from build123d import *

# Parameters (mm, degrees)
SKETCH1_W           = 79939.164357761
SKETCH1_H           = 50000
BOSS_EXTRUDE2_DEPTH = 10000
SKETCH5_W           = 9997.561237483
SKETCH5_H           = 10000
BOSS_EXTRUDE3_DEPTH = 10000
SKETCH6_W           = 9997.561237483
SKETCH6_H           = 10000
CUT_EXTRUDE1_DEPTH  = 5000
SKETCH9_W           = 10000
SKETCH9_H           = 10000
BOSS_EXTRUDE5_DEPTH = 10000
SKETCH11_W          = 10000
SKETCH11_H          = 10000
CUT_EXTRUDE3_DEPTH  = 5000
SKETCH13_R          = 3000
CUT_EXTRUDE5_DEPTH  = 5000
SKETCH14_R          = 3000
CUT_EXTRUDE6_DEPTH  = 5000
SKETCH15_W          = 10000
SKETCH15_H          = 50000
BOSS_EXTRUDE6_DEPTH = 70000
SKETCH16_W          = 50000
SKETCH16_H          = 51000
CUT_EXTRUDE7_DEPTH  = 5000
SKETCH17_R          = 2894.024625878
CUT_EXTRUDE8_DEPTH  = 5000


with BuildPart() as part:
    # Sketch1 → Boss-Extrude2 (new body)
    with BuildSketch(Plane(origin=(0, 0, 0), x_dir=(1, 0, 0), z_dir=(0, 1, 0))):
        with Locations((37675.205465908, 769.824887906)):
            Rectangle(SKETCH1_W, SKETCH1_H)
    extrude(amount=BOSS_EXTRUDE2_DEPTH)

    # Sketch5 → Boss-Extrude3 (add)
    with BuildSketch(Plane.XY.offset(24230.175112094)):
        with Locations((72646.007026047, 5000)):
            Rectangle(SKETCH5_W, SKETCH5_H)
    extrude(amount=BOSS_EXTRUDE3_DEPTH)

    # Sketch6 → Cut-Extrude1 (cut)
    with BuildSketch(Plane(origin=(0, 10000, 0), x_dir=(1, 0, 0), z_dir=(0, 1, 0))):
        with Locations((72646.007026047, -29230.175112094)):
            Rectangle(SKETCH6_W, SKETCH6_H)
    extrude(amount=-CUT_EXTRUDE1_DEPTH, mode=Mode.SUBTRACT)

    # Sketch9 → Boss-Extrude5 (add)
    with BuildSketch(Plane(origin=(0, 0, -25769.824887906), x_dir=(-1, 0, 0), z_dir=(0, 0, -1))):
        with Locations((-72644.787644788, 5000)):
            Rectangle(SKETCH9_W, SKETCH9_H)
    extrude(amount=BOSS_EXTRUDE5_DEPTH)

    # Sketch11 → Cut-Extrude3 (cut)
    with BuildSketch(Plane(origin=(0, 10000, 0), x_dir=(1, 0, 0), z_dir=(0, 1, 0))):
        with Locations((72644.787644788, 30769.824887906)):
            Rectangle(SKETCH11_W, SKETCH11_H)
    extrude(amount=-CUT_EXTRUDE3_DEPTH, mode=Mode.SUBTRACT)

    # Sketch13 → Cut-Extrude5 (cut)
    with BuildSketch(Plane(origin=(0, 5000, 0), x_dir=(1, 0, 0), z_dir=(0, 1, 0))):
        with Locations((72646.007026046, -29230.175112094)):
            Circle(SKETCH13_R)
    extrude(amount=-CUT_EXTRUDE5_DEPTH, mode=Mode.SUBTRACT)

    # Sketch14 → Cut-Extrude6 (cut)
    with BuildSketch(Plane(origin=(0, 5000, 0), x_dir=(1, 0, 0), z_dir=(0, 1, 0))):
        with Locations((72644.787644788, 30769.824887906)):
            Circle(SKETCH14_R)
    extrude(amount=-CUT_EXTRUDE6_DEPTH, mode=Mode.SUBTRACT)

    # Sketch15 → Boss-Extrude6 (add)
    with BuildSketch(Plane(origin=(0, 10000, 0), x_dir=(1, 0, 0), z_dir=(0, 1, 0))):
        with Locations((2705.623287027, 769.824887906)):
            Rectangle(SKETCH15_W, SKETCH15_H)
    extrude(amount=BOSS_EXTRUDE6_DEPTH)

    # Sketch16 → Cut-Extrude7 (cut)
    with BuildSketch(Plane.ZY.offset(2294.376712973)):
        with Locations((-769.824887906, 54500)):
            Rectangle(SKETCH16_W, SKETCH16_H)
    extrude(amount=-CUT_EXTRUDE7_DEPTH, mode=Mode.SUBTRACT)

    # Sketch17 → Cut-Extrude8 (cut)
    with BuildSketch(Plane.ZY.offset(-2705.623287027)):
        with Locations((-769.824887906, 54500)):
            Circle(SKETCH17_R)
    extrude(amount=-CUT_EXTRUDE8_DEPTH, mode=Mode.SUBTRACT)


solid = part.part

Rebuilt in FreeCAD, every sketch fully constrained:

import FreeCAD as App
import Part
import Sketcher

V = App.Vector

doc = App.newDocument("Part")
params = doc.addObject("Spreadsheet::Sheet", "Params")
for row, (alias, value) in enumerate([
    ("sketch1_height", "50000 mm"),
    ("pad1_length", "10000 mm"),
    ("sketch2_height", "10000 mm"),
    ("pad2_length", "10000 mm"),
    ("sketch3_height", "10000 mm"),
    ("pocket1_length", "5000 mm"),
    ("sketch4_width", "10000 mm"),
    ("pad3_length", "10000 mm"),
    ("sketch5_width", "10000 mm"),
    ("pocket2_length", "5000 mm"),
    ("sketch6_diameter", "6000 mm"),
    ("pocket3_length", "5000 mm"),
    ("sketch7_diameter", "6000 mm"),
    ("pocket4_length", "5000 mm"),
    ("sketch8_width", "10000 mm"),
    ("sketch8_height", "50000 mm"),
    ("pad4_length", "70000 mm"),
    ("sketch9_width", "51000 mm"),
    ("sketch9_height", "50000 mm"),
    ("pocket5_length", "5000 mm"),
    ("pocket6_length", "5000 mm"),
], start=1):
    params.set(f"A{row}", alias)
    params.set(f"B{row}", "=" + value)
    params.setAlias(f"B{row}", alias)

body = doc.addObject("PartDesign::Body", "Body")

sketch1 = body.newObject("Sketcher::SketchObject", "Sketch")
sketch1.AttachmentSupport = (doc.getObject("XZ_Plane"), [""])
sketch1.MapMode = "FlatFace"
sketch1.addGeometry([
    Part.LineSegment(V(-2294, -25770, 0), V(-2294, 24230, 0)),
    Part.LineSegment(V(-2294, 24230, 0), V(77645, 24230, 0)),
    Part.LineSegment(V(77645, 24230, 0), V(77645, -25770, 0)),
    Part.LineSegment(V(77645, -25770, 0), V(-2294, -25770, 0)),
], False)
sketch1.addConstraint([
    Sketcher.Constraint("Coincident", 0, 2, 1, 1),
    Sketcher.Constraint("Coincident", 1, 2, 2, 1),
    Sketcher.Constraint("Coincident", 2, 2, 3, 1),
    Sketcher.Constraint("Coincident", 3, 2, 0, 1),
    Sketcher.Constraint("Vertical", 0),
    Sketcher.Constraint("Horizontal", 1),
    Sketcher.Constraint("Vertical", 2),
    Sketcher.Constraint("Horizontal", 3),
    Sketcher.Constraint("DistanceY", 0, 1, 0, 2, 50000.0),
    Sketcher.Constraint("DistanceX", 1, 1, 1, 2, 79939.164358),
    Sketcher.Constraint("DistanceX", 0, 2, -1, 1, 2294.376713),
    Sketcher.Constraint("DistanceY", -1, 1, 0, 2, 24230.175112),
])
sketch1.setExpression("Constraints[8]", "Params.sketch1_height")
pad1 = body.newObject("PartDesign::Pad", "Pad")
pad1.Profile = sketch1
pad1.setExpression("Length", "Params.pad1_length")
pad1.Reversed = True

sketch2 = body.newObject("Sketcher::SketchObject", "Sketch001")
sketch2.AttachmentSupport = (doc.getObject("XY_Plane"), [""])
sketch2.MapMode = "FlatFace"
sketch2.AttachmentOffset = App.Placement(V(0, 0, 24230.175112), App.Rotation())
sketch2.addGeometry([
    Part.LineSegment(V(67647, 10000, 0), V(67647, 0, 0)),
    Part.LineSegment(V(67647, 0, 0), V(77645, 0, 0)),
    Part.LineSegment(V(77645, 0, 0), V(77645, 10000, 0)),
    Part.LineSegment(V(77645, 10000, 0), V(67647, 10000, 0)),
], False)
sketch2.addConstraint([
    Sketcher.Constraint("Coincident", 0, 2, 1, 1),
    Sketcher.Constraint("Coincident", 1, 2, 2, 1),
    Sketcher.Constraint("Coincident", 2, 2, 3, 1),
    Sketcher.Constraint("Coincident", 3, 2, 0, 1),
    Sketcher.Constraint("Vertical", 0),
    Sketcher.Constraint("Horizontal", 1),
    Sketcher.Constraint("Vertical", 2),
    Sketcher.Constraint("Horizontal", 3),
    Sketcher.Constraint("PointOnObject", 0, 2, -1),
    Sketcher.Constraint("DistanceY", 0, 2, 0, 1, 10000.0),
    Sketcher.Constraint("DistanceX", 1, 1, 1, 2, 9997.561237),
    Sketcher.Constraint("DistanceX", -1, 1, 0, 2, 67647.226407),
])
sketch2.setExpression("Constraints[9]", "Params.sketch2_height")
pad2 = body.newObject("PartDesign::Pad", "Pad001")
pad2.Profile = sketch2
pad2.setExpression("Length", "Params.pad2_length")

sketch3 = body.newObject("Sketcher::SketchObject", "Sketch002")
sketch3.AttachmentSupport = (doc.getObject("XZ_Plane"), [""])
sketch3.MapMode = "FlatFace"
sketch3.AttachmentOffset = App.Placement(V(0, 0, -10000), App.Rotation())
sketch3.addGeometry([
    Part.LineSegment(V(67647, 24230, 0), V(67647, 34230, 0)),
    Part.LineSegment(V(67647, 34230, 0), V(77645, 34230, 0)),
    Part.LineSegment(V(77645, 34230, 0), V(77645, 24230, 0)),
    Part.LineSegment(V(77645, 24230, 0), V(67647, 24230, 0)),
], False)
sketch3.addConstraint([
    Sketcher.Constraint("Coincident", 0, 2, 1, 1),
    Sketcher.Constraint("Coincident", 1, 2, 2, 1),
    Sketcher.Constraint("Coincident", 2, 2, 3, 1),
    Sketcher.Constraint("Coincident", 3, 2, 0, 1),
    Sketcher.Constraint("Vertical", 0),
    Sketcher.Constraint("Horizontal", 1),
    Sketcher.Constraint("Vertical", 2),
    Sketcher.Constraint("Horizontal", 3),
    Sketcher.Constraint("DistanceY", 0, 1, 0, 2, 10000.0),
    Sketcher.Constraint("DistanceX", 1, 1, 1, 2, 9997.561237),
    Sketcher.Constraint("DistanceX", -1, 1, 0, 2, 67647.226407),
    Sketcher.Constraint("DistanceY", -1, 1, 0, 2, 34230.175112),
])
sketch3.setExpression("Constraints[8]", "Params.sketch3_height")
pocket1 = body.newObject("PartDesign::Pocket", "Pocket")
pocket1.Profile = sketch3
pocket1.setExpression("Length", "Params.pocket1_length")
pocket1.Reversed = True

sketch4 = body.newObject("Sketcher::SketchObject", "Sketch003")
sketch4.AttachmentSupport = (doc.getObject("XY_Plane"), [""])
sketch4.MapMode = "FlatFace"
sketch4.AttachmentOffset = App.Placement(V(0, 0, -25769.824888), App.Rotation())
sketch4.addGeometry([
    Part.LineSegment(V(77645, 10000, 0), V(77645, 0, 0)),
    Part.LineSegment(V(77645, 0, 0), V(67645, 0, 0)),
    Part.LineSegment(V(67645, 0, 0), V(67645, 10000, 0)),
    Part.LineSegment(V(67645, 10000, 0), V(77645, 10000, 0)),
], False)
sketch4.addConstraint([
    Sketcher.Constraint("Coincident", 0, 2, 1, 1),
    Sketcher.Constraint("Coincident", 1, 2, 2, 1),
    Sketcher.Constraint("Coincident", 2, 2, 3, 1),
    Sketcher.Constraint("Coincident", 3, 2, 0, 1),
    Sketcher.Constraint("Vertical", 0),
    Sketcher.Constraint("Horizontal", 1),
    Sketcher.Constraint("Vertical", 2),
    Sketcher.Constraint("Horizontal", 3),
    Sketcher.Constraint("PointOnObject", 0, 2, -1),
    Sketcher.Constraint("Equal", 3, 0),
    Sketcher.Constraint("DistanceX", 1, 2, 1, 1, 10000.0),
    Sketcher.Constraint("DistanceX", -1, 1, 0, 2, 77644.787645),
])
sketch4.setExpression("Constraints[10]", "Params.sketch4_width")
pad3 = body.newObject("PartDesign::Pad", "Pad002")
pad3.Profile = sketch4
pad3.setExpression("Length", "Params.pad3_length")
pad3.Reversed = True

sketch5 = body.newObject("Sketcher::SketchObject", "Sketch004")
sketch5.AttachmentSupport = (doc.getObject("XZ_Plane"), [""])
sketch5.MapMode = "FlatFace"
sketch5.AttachmentOffset = App.Placement(V(0, 0, -10000), App.Rotation())
sketch5.addGeometry([
    Part.LineSegment(V(67645, -35770, 0), V(67645, -25770, 0)),
    Part.LineSegment(V(67645, -25770, 0), V(77645, -25770, 0)),
    Part.LineSegment(V(77645, -25770, 0), V(77645, -35770, 0)),
    Part.LineSegment(V(77645, -35770, 0), V(67645, -35770, 0)),
], False)
sketch5.addConstraint([
    Sketcher.Constraint("Coincident", 0, 2, 1, 1),
    Sketcher.Constraint("Coincident", 1, 2, 2, 1),
    Sketcher.Constraint("Coincident", 2, 2, 3, 1),
    Sketcher.Constraint("Coincident", 3, 2, 0, 1),
    Sketcher.Constraint("Vertical", 0),
    Sketcher.Constraint("Horizontal", 1),
    Sketcher.Constraint("Vertical", 2),
    Sketcher.Constraint("Horizontal", 3),
    Sketcher.Constraint("Equal", 3, 0),
    Sketcher.Constraint("DistanceX", 1, 1, 1, 2, 10000.0),
    Sketcher.Constraint("DistanceX", -1, 1, 0, 2, 67644.787645),
    Sketcher.Constraint("DistanceY", 0, 2, -1, 1, 25769.824888),
])
sketch5.setExpression("Constraints[9]", "Params.sketch5_width")
pocket2 = body.newObject("PartDesign::Pocket", "Pocket001")
pocket2.Profile = sketch5
pocket2.setExpression("Length", "Params.pocket2_length")
pocket2.Reversed = True

sketch6 = body.newObject("Sketcher::SketchObject", "Sketch005")
sketch6.AttachmentSupport = (doc.getObject("XZ_Plane"), [""])
sketch6.MapMode = "FlatFace"
sketch6.AttachmentOffset = App.Placement(V(0, 0, -5000), App.Rotation())
sketch6.addGeometry(Part.Circle(V(72646, 29230, 0), V(0, 0, 1), 3000), False)
sketch6.addConstraint([
    Sketcher.Constraint("Diameter", 0, 6000.0),
    Sketcher.Constraint("DistanceX", -1, 1, 0, 3, 72646.007026),
    Sketcher.Constraint("DistanceY", -1, 1, 0, 3, 29230.175112),
])
sketch6.setExpression("Constraints[0]", "Params.sketch6_diameter")
pocket3 = body.newObject("PartDesign::Pocket", "Pocket002")
pocket3.Profile = sketch6
pocket3.setExpression("Length", "Params.pocket3_length")
pocket3.Reversed = True

sketch7 = body.newObject("Sketcher::SketchObject", "Sketch006")
sketch7.AttachmentSupport = (doc.getObject("XZ_Plane"), [""])
sketch7.MapMode = "FlatFace"
sketch7.AttachmentOffset = App.Placement(V(0, 0, -5000), App.Rotation())
sketch7.addGeometry(Part.Circle(V(72645, -30770, 0), V(0, 0, 1), 3000), False)
sketch7.addConstraint([
    Sketcher.Constraint("Diameter", 0, 6000.0),
    Sketcher.Constraint("DistanceX", -1, 1, 0, 3, 72644.787645),
    Sketcher.Constraint("DistanceY", 0, 3, -1, 1, 30769.824888),
])
sketch7.setExpression("Constraints[0]", "Params.sketch7_diameter")
pocket4 = body.newObject("PartDesign::Pocket", "Pocket003")
pocket4.Profile = sketch7
pocket4.setExpression("Length", "Params.pocket4_length")
pocket4.Reversed = True

sketch8 = body.newObject("Sketcher::SketchObject", "Sketch007")
sketch8.AttachmentSupport = (doc.getObject("XZ_Plane"), [""])
sketch8.MapMode = "FlatFace"
sketch8.AttachmentOffset = App.Placement(V(0, 0, -10000), App.Rotation())
sketch8.addGeometry([
    Part.LineSegment(V(-2294, -25770, 0), V(-2294, 24230, 0)),
    Part.LineSegment(V(-2294, 24230, 0), V(7706, 24230, 0)),
    Part.LineSegment(V(7706, 24230, 0), V(7706, -25770, 0)),
    Part.LineSegment(V(7706, -25770, 0), V(-2294, -25770, 0)),
], False)
sketch8.addConstraint([
    Sketcher.Constraint("Coincident", 0, 2, 1, 1),
    Sketcher.Constraint("Coincident", 1, 2, 2, 1),
    Sketcher.Constraint("Coincident", 2, 2, 3, 1),
    Sketcher.Constraint("Coincident", 3, 2, 0, 1),
    Sketcher.Constraint("Vertical", 0),
    Sketcher.Constraint("Horizontal", 1),
    Sketcher.Constraint("Vertical", 2),
    Sketcher.Constraint("Horizontal", 3),
    Sketcher.Constraint("DistanceX", 1, 1, 1, 2, 10000.0),
    Sketcher.Constraint("DistanceY", 0, 1, 0, 2, 50000.0),
    Sketcher.Constraint("DistanceX", 0, 2, -1, 1, 2294.376713),
    Sketcher.Constraint("DistanceY", -1, 1, 0, 2, 24230.175112),
])
sketch8.setExpression("Constraints[8]", "Params.sketch8_width")
sketch8.setExpression("Constraints[9]", "Params.sketch8_height")
pad4 = body.newObject("PartDesign::Pad", "Pad003")
pad4.Profile = sketch8
pad4.setExpression("Length", "Params.pad4_length")
pad4.Reversed = True

sketch9 = body.newObject("Sketcher::SketchObject", "Sketch008")
sketch9.AttachmentSupport = (doc.getObject("YZ_Plane"), [""])
sketch9.MapMode = "FlatFace"
sketch9.AttachmentOffset = App.Placement(V(0, 0, -2294.376713), App.Rotation())
sketch9.addGeometry([
    Part.LineSegment(V(80000, -25770, 0), V(29000, -25770, 0)),
    Part.LineSegment(V(29000, -25770, 0), V(29000, 24230, 0)),
    Part.LineSegment(V(29000, 24230, 0), V(80000, 24230, 0)),
    Part.LineSegment(V(80000, 24230, 0), V(80000, -25770, 0)),
], False)
sketch9.addConstraint([
    Sketcher.Constraint("Coincident", 0, 2, 1, 1),
    Sketcher.Constraint("Coincident", 1, 2, 2, 1),
    Sketcher.Constraint("Coincident", 2, 2, 3, 1),
    Sketcher.Constraint("Coincident", 3, 2, 0, 1),
    Sketcher.Constraint("Horizontal", 0),
    Sketcher.Constraint("Vertical", 1),
    Sketcher.Constraint("Horizontal", 2),
    Sketcher.Constraint("Vertical", 3),
    Sketcher.Constraint("DistanceX", 0, 2, 0, 1, 51000.0),
    Sketcher.Constraint("DistanceY", 1, 1, 1, 2, 50000.0),
    Sketcher.Constraint("DistanceX", -1, 1, 0, 2, 29000.0),
    Sketcher.Constraint("DistanceY", 0, 2, -1, 1, 25769.824888),
])
sketch9.setExpression("Constraints[8]", "Params.sketch9_width")
sketch9.setExpression("Constraints[9]", "Params.sketch9_height")
pocket5 = body.newObject("PartDesign::Pocket", "Pocket004")
pocket5.Profile = sketch9
pocket5.setExpression("Length", "Params.pocket5_length")
pocket5.Reversed = True

sketch10 = body.newObject("Sketcher::SketchObject", "Sketch009")
sketch10.AttachmentSupport = (doc.getObject("YZ_Plane"), [""])
sketch10.MapMode = "FlatFace"
sketch10.AttachmentOffset = App.Placement(V(0, 0, 2705.623287), App.Rotation())
sketch10.addGeometry(Part.Circle(V(54500, -770, 0), V(0, 0, 1), 2894), False)
sketch10.addConstraint([
    Sketcher.Constraint("DistanceX", -1, 1, 0, 3, 54500.0),
    Sketcher.Constraint("Diameter", 0, 5788.049252),
    Sketcher.Constraint("DistanceY", 0, 3, -1, 1, 769.824888),
])
pocket6 = body.newObject("PartDesign::Pocket", "Pocket005")
pocket6.Profile = sketch10
pocket6.setExpression("Length", "Params.pocket6_length")
pocket6.Reversed = True

doc.recompute()
